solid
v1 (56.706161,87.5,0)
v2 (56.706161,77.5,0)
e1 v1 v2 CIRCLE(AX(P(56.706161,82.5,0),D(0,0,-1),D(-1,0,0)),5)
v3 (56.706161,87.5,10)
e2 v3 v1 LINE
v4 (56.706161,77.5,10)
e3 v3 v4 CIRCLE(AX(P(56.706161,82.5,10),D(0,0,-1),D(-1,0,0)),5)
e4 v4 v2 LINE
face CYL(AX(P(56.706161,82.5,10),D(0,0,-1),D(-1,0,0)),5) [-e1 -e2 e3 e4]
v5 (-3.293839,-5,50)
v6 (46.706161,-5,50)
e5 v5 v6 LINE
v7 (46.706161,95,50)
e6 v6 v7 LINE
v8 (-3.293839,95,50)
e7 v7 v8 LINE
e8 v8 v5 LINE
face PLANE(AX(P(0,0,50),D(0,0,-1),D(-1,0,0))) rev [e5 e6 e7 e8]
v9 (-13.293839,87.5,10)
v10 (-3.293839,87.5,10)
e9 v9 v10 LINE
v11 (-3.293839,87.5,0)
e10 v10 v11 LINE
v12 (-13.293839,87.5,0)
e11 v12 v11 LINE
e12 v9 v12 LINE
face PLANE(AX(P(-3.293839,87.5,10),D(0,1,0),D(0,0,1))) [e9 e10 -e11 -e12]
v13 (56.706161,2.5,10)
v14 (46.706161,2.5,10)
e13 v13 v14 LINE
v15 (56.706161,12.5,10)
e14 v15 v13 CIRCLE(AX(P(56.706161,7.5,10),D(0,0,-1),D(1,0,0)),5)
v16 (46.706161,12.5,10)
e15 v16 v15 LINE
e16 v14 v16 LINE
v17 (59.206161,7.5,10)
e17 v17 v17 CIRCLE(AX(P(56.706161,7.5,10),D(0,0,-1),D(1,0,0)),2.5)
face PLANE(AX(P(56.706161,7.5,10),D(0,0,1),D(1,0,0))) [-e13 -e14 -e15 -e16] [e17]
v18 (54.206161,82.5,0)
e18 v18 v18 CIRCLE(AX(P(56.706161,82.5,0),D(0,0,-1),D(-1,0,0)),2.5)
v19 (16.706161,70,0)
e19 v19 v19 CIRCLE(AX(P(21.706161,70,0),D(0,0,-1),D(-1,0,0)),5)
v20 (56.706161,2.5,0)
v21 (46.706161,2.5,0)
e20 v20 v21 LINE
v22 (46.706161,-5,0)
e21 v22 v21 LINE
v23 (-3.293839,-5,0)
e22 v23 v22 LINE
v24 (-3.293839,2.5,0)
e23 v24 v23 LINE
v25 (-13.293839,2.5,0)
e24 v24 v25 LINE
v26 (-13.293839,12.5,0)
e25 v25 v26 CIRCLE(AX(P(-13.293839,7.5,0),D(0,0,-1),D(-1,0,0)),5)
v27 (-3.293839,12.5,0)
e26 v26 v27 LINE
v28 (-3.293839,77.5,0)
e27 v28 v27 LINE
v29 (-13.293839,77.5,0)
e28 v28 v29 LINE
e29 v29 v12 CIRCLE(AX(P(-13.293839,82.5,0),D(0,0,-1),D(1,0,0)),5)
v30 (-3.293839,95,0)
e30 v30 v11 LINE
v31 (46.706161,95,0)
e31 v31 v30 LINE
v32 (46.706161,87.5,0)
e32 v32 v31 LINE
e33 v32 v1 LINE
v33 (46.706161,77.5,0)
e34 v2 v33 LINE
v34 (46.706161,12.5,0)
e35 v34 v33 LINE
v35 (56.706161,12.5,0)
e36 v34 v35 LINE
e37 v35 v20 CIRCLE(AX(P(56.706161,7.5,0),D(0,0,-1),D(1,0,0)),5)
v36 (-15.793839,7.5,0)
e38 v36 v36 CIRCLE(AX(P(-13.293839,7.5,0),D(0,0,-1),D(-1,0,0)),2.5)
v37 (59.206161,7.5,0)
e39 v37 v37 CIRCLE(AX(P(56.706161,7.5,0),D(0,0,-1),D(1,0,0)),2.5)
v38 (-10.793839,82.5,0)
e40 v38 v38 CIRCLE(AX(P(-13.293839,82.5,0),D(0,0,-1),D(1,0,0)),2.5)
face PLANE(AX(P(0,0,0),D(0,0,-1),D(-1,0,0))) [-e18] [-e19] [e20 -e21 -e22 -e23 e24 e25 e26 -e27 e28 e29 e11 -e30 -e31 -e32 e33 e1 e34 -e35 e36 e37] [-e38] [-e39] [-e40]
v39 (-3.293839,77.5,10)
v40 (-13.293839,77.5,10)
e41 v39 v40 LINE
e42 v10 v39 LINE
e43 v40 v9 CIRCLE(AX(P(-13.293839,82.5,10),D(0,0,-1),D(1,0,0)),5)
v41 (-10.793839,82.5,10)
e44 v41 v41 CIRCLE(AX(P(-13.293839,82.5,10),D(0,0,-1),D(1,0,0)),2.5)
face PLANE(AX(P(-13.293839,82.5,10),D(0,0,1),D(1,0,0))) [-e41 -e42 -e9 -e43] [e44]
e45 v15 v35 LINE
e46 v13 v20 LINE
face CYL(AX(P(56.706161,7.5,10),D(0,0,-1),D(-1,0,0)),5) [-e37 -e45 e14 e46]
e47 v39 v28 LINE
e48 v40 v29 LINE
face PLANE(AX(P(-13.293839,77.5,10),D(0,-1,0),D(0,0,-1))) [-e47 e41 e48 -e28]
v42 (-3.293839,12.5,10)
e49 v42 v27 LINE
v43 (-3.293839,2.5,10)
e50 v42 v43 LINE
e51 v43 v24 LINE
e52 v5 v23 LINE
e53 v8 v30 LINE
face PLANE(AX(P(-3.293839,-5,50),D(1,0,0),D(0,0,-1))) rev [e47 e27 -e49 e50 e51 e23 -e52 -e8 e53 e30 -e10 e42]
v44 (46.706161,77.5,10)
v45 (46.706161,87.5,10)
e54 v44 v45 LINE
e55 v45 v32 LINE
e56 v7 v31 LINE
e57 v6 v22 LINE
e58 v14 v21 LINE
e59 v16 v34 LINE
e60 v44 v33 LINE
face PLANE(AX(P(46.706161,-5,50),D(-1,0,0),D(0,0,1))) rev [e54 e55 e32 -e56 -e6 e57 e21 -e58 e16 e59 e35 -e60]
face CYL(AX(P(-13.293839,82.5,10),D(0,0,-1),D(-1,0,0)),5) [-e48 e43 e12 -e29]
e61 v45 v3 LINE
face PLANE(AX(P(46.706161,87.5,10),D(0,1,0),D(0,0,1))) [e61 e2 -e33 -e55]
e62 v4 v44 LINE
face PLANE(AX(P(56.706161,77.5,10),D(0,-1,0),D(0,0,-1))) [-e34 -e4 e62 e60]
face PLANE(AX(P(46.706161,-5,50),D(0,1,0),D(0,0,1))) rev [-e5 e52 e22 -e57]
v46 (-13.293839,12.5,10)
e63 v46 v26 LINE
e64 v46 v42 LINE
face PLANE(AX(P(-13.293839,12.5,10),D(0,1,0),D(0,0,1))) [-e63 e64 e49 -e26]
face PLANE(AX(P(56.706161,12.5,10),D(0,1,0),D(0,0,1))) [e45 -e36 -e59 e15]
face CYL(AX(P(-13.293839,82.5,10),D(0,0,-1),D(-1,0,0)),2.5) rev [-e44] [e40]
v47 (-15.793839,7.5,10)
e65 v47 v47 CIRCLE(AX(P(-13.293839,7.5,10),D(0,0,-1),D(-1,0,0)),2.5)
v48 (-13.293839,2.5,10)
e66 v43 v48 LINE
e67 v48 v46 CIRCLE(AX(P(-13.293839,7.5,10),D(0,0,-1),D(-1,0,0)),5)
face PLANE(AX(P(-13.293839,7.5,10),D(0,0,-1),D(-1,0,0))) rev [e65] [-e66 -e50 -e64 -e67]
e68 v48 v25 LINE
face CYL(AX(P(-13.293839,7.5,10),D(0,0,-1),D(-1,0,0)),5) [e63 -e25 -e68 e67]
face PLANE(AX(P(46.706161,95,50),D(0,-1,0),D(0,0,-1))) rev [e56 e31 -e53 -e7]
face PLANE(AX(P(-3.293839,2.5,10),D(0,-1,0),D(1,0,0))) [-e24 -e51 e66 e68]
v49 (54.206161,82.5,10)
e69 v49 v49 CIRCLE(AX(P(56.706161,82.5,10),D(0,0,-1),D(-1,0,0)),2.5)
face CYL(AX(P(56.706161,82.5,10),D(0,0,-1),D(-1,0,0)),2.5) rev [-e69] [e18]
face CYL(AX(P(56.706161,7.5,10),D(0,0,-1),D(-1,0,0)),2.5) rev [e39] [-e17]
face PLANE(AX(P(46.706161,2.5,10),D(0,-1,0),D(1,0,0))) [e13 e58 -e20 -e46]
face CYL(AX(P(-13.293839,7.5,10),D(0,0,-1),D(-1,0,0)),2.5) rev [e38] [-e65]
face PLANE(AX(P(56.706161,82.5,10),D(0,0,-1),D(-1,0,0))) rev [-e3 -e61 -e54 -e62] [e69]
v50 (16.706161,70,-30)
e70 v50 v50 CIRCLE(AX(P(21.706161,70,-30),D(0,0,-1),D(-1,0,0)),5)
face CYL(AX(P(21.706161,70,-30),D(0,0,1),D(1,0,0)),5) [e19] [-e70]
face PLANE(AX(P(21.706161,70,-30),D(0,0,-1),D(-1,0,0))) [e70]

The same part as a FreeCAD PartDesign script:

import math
import FreeCAD as App
import Part
import Sketcher


def add_polygon(sketch, points):
    """Adds a closed chain of lines whose ends are joined by coincident constraints."""
    first, n = sketch.GeometryCount, len(points)
    for a, b in zip(points, points[1:] + points[:1]):
        sketch.addGeometry(Part.LineSegment(App.Vector(*a, 0), App.Vector(*b, 0)), False)
    for i in range(n):
        sketch.addConstraint(Sketcher.Constraint("Coincident", first + i, 2, first + (i + 1) % n, 1))

doc = App.newDocument("Part")
body = doc.addObject("PartDesign::Body", "Body")

sketch1 = body.newObject("Sketcher::SketchObject", "Sketch")
sketch1.AttachmentSupport = (doc.getObject("XY_Plane"), [""])
sketch1.MapMode = "FlatFace"
add_polygon(sketch1, [(-3, -5), (47, -5), (47, 95), (-3, 95)])
sketch1.addConstraint(Sketcher.Constraint("Horizontal", 0))
sketch1.addConstraint(Sketcher.Constraint("Vertical", 1))
sketch1.addConstraint(Sketcher.Constraint("Horizontal", 2))
sketch1.addConstraint(Sketcher.Constraint("Vertical", 3))
sketch1.addConstraint(Sketcher.Constraint("DistanceX", 0, 1, 0, 2, 50.0))
sketch1.addConstraint(Sketcher.Constraint("DistanceY", 1, 1, 1, 2, 100.0))
sketch1.addConstraint(Sketcher.Constraint("DistanceY", 0, 2, -1, 1, 5.0))
sketch1.addConstraint(Sketcher.Constraint("DistanceX", -1, 1, 0, 2, 46.706161))
pad1 = body.newObject("PartDesign::Pad", "Pad")
pad1.Profile = sketch1
pad1.Length = 50

sketch2 = body.newObject("Sketcher::SketchObject", "Sketch001")
sketch2.AttachmentSupport = (doc.getObject("XY_Plane"), [""])
sketch2.MapMode = "FlatFace"
sketch2.addGeometry(Part.LineSegment(App.Vector(-3.3, 2.5, 0), App.Vector(-13.3, 2.5, 0)), False)
sketch2.addGeometry(Part.ArcOfCircle(Part.Circle(App.Vector(-13.3, 7.5, 0), App.Vector(0, 0, 1), 5), math.radians(90), math.radians(270)), False)
sketch2.addGeometry(Part.LineSegment(App.Vector(-13.3, 12.5, 0), App.Vector(-3.3, 12.5, 0)), False)
sketch2.addGeometry(Part.LineSegment(App.Vector(-3.3, 12.5, 0), App.Vector(-3.3, 2.5, 0)), False)
sketch2.addGeometry(Part.Circle(App.Vector(-13.3, 7.5, 0), App.Vector(0, 0, 1), 2.5), False)
sketch2.addGeometry(Part.LineSegment(App.Vector(-3.3, 87.5, 0), App.Vector(-3.3, 77.5, 0)), False)
sketch2.addGeometry(Part.LineSegment(App.Vector(-3.3, 77.5, 0), App.Vector(-13.3, 77.5, 0)), False)
sketch2.addGeometry(Part.ArcOfCircle(Part.Circle(App.Vector(-13.3, 82.5, 0), App.Vector(0, 0, 1), 5), math.radians(90), math.radians(270)), False)
sketch2.addGeometry(Part.LineSegment(App.Vector(-13.3, 87.5, 0), App.Vector(-3.3, 87.5, 0)), False)
sketch2.addGeometry(Part.Circle(App.Vector(-13.3, 82.5, 0), App.Vector(0, 0, 1), 2.5), False)
sketch2.addGeometry(Part.LineSegment(App.Vector(46.7, 87.5, 0), App.Vector(56.7, 87.5, 0)), False)
sketch2.addGeometry(Part.ArcOfCircle(Part.Circle(App.Vector(56.7, 82.5, 0), App.Vector(0, 0, 1), 5), math.radians(-90), math.radians(90)), False)
sketch2.addGeometry(Part.LineSegment(App.Vector(56.7, 77.5, 0), App.Vector(46.7, 77.5, 0)), False)
sketch2.addGeometry(Part.LineSegment(App.Vector(46.7, 77.5, 0), App.Vector(46.7, 87.5, 0)), False)
sketch2.addGeometry(Part.Circle(App.Vector(56.7, 82.5, 0), App.Vector(0, 0, 1), 2.5), False)
sketch2.addGeometry(Part.LineSegment(App.Vector(46.7, 2.5, 0), App.Vector(46.7, 12.5, 0)), False)
sketch2.addGeometry(Part.LineSegment(App.Vector(46.7, 12.5, 0), App.Vector(56.7, 12.5, 0)), False)
sketch2.addGeometry(Part.ArcOfCircle(Part.Circle(App.Vector(56.7, 7.5, 0), App.Vector(0, 0, 1), 5), math.radians(-90), math.radians(90)), False)
sketch2.addGeometry(Part.LineSegment(App.Vector(56.7, 2.5, 0), App.Vector(46.7, 2.5, 0)), False)
sketch2.addGeometry(Part.Circle(App.Vector(56.7, 7.5, 0), App.Vector(0, 0, 1), 2.5), False)
sketch2.addConstraint(Sketcher.Constraint("Tangent", 0, 2, 1, 2))
sketch2.addConstraint(Sketcher.Constraint("Tangent", 1, 1, 2, 1))
sketch2.addConstraint(Sketcher.Constraint("Coincident", 2, 2, 3, 1))
sketch2.addConstraint(Sketcher.Constraint("Coincident", 3, 2, 0, 1))
sketch2.addConstraint(Sketcher.Constraint("Coincident", 5, 2, 6, 1))
sketch2.addConstraint(Sketcher.Constraint("Tangent", 6, 2, 7, 2))
sketch2.addConstraint(Sketcher.Constraint("Tangent", 7, 1, 8, 1))
sketch2.addConstraint(Sketcher.Constraint("Coincident", 8, 2, 5, 1))
sketch2.addConstraint(Sketcher.Constraint("Tangent", 10, 2, 11, 2))
sketch2.addConstraint(Sketcher.Constraint("Tangent", 11, 1, 12, 1))
sketch2.addConstraint(Sketcher.Constraint("Coincident", 12, 2, 13, 1))
sketch2.addConstraint(Sketcher.Constraint("Coincident", 13, 2, 10, 1))
sketch2.addConstraint(Sketcher.Constraint("Coincident", 15, 2, 16, 1))
sketch2.addConstraint(Sketcher.Constraint("Tangent", 16, 2, 17, 2))
sketch2.addConstraint(Sketcher.Constraint("Tangent", 17, 1, 18, 1))
sketch2.addConstraint(Sketcher.Constraint("Coincident", 18, 2, 15, 1))
sketch2.addConstraint(Sketcher.Constraint("Horizontal", 0))
sketch2.addConstraint(Sketcher.Constraint("Horizontal", 2))
sketch2.addConstraint(Sketcher.Constraint("Vertical", 3))
sketch2.addConstraint(Sketcher.Constraint("Vertical", 5))
sketch2.addConstraint(Sketcher.Constraint("Horizontal", 6))
sketch2.addConstraint(Sketcher.Constraint("Horizontal", 8))
sketch2.addConstraint(Sketcher.Constraint("Horizontal", 10))
sketch2.addConstraint(Sketcher.Constraint("Horizontal", 12))
sketch2.addConstraint(Sketcher.Constraint("Vertical", 13))
sketch2.addConstraint(Sketcher.Constraint("Vertical", 15))
sketch2.addConstraint(Sketcher.Constraint("Horizontal", 16))
sketch2.addConstraint(Sketcher.Constraint("Horizontal", 18))
sketch2.addConstraint(Sketcher.Constraint("Coincident", 4, 3, 1, 3))
sketch2.addConstraint(Sketcher.Constraint("Coincident", 9, 3, 7, 3))
sketch2.addConstraint(Sketcher.Constraint("Coincident", 14, 3, 11, 3))
sketch2.addConstraint(Sketcher.Constraint("Coincident", 19, 3, 17, 3))
sketch2.addConstraint(Sketcher.Constraint("Equal", 1, 7))
sketch2.addConstraint(Sketcher.Constraint("Equal", 4, 9))
sketch2.addConstraint(Sketcher.Constraint("Equal", 7, 11))
sketch2.addConstraint(Sketcher.Constraint("Equal", 9, 14))
sketch2.addConstraint(Sketcher.Constraint("Equal", 11, 17))
sketch2.addConstraint(Sketcher.Constraint("Equal", 14, 19))
sketch2.addConstraint(Sketcher.Constraint("Horizontal", 9, 3, 11, 3))
sketch2.addConstraint(Sketcher.Constraint("Horizontal", 4, 3, 17, 3))
sketch2.addConstraint(Sketcher.Constraint("Vertical", 4, 3, 7, 3))
sketch2.addConstraint(Sketcher.Constraint("Vertical", 14, 3, 17, 3))
sketch2.addConstraint(Sketcher.Constraint("Vertical", 3, 2, 5, 2))
sketch2.addConstraint(Sketcher.Constraint("Vertical", 13, 2, 15, 2))
sketch2.addConstraint(Sketcher.Constraint("Equal", 8, 10))
sketch2.addConstraint(Sketcher.Constraint("Equal", 18, 3))
sketch2.addConstraint(Sketcher.Constraint("Diameter", 4, 5.0))
sketch2.addConstraint(Sketcher.Constraint("Radius", 1, 5.0))
sketch2.addConstraint(Sketcher.Constraint("DistanceY", 1, 3, 7, 3, 75.0))
sketch2.addConstraint(Sketcher.Constraint("DistanceX", 7, 3, 11, 3, 70.0))
sketch2.addConstraint(Sketcher.Constraint("DistanceY", -1, 1, 1, 3, 7.5))
sketch2.addConstraint(Sketcher.Constraint("DistanceX", 1, 3, -1, 1, 13.293839))
pad2 = body.newObject("PartDesign::Pad", "Pad001")
pad2.Profile = sketch2
pad2.Length = 10

sketch3 = body.newObject("Sketcher::SketchObject", "Sketch002")
sketch3.AttachmentSupport = (doc.getObject("XY_Plane"), [""])
sketch3.MapMode = "FlatFace"
sketch3.addGeometry(Part.Circle(App.Vector(22, 70, 0), App.Vector(0, 0, 1), 5), False)
sketch3.addConstraint(Sketcher.Constraint("Diameter", 0, 10.0))
sketch3.addConstraint(Sketcher.Constraint("DistanceY", -1, 1, 0, 3, 70.0))
sketch3.addConstraint(Sketcher.Constraint("DistanceX", -1, 1, 0, 3, 21.706161))
pad3 = body.newObject("PartDesign::Pad", "Pad002")
pad3.Profile = sketch3
pad3.Length = 30
pad3.Reversed = True

doc.recompute()
